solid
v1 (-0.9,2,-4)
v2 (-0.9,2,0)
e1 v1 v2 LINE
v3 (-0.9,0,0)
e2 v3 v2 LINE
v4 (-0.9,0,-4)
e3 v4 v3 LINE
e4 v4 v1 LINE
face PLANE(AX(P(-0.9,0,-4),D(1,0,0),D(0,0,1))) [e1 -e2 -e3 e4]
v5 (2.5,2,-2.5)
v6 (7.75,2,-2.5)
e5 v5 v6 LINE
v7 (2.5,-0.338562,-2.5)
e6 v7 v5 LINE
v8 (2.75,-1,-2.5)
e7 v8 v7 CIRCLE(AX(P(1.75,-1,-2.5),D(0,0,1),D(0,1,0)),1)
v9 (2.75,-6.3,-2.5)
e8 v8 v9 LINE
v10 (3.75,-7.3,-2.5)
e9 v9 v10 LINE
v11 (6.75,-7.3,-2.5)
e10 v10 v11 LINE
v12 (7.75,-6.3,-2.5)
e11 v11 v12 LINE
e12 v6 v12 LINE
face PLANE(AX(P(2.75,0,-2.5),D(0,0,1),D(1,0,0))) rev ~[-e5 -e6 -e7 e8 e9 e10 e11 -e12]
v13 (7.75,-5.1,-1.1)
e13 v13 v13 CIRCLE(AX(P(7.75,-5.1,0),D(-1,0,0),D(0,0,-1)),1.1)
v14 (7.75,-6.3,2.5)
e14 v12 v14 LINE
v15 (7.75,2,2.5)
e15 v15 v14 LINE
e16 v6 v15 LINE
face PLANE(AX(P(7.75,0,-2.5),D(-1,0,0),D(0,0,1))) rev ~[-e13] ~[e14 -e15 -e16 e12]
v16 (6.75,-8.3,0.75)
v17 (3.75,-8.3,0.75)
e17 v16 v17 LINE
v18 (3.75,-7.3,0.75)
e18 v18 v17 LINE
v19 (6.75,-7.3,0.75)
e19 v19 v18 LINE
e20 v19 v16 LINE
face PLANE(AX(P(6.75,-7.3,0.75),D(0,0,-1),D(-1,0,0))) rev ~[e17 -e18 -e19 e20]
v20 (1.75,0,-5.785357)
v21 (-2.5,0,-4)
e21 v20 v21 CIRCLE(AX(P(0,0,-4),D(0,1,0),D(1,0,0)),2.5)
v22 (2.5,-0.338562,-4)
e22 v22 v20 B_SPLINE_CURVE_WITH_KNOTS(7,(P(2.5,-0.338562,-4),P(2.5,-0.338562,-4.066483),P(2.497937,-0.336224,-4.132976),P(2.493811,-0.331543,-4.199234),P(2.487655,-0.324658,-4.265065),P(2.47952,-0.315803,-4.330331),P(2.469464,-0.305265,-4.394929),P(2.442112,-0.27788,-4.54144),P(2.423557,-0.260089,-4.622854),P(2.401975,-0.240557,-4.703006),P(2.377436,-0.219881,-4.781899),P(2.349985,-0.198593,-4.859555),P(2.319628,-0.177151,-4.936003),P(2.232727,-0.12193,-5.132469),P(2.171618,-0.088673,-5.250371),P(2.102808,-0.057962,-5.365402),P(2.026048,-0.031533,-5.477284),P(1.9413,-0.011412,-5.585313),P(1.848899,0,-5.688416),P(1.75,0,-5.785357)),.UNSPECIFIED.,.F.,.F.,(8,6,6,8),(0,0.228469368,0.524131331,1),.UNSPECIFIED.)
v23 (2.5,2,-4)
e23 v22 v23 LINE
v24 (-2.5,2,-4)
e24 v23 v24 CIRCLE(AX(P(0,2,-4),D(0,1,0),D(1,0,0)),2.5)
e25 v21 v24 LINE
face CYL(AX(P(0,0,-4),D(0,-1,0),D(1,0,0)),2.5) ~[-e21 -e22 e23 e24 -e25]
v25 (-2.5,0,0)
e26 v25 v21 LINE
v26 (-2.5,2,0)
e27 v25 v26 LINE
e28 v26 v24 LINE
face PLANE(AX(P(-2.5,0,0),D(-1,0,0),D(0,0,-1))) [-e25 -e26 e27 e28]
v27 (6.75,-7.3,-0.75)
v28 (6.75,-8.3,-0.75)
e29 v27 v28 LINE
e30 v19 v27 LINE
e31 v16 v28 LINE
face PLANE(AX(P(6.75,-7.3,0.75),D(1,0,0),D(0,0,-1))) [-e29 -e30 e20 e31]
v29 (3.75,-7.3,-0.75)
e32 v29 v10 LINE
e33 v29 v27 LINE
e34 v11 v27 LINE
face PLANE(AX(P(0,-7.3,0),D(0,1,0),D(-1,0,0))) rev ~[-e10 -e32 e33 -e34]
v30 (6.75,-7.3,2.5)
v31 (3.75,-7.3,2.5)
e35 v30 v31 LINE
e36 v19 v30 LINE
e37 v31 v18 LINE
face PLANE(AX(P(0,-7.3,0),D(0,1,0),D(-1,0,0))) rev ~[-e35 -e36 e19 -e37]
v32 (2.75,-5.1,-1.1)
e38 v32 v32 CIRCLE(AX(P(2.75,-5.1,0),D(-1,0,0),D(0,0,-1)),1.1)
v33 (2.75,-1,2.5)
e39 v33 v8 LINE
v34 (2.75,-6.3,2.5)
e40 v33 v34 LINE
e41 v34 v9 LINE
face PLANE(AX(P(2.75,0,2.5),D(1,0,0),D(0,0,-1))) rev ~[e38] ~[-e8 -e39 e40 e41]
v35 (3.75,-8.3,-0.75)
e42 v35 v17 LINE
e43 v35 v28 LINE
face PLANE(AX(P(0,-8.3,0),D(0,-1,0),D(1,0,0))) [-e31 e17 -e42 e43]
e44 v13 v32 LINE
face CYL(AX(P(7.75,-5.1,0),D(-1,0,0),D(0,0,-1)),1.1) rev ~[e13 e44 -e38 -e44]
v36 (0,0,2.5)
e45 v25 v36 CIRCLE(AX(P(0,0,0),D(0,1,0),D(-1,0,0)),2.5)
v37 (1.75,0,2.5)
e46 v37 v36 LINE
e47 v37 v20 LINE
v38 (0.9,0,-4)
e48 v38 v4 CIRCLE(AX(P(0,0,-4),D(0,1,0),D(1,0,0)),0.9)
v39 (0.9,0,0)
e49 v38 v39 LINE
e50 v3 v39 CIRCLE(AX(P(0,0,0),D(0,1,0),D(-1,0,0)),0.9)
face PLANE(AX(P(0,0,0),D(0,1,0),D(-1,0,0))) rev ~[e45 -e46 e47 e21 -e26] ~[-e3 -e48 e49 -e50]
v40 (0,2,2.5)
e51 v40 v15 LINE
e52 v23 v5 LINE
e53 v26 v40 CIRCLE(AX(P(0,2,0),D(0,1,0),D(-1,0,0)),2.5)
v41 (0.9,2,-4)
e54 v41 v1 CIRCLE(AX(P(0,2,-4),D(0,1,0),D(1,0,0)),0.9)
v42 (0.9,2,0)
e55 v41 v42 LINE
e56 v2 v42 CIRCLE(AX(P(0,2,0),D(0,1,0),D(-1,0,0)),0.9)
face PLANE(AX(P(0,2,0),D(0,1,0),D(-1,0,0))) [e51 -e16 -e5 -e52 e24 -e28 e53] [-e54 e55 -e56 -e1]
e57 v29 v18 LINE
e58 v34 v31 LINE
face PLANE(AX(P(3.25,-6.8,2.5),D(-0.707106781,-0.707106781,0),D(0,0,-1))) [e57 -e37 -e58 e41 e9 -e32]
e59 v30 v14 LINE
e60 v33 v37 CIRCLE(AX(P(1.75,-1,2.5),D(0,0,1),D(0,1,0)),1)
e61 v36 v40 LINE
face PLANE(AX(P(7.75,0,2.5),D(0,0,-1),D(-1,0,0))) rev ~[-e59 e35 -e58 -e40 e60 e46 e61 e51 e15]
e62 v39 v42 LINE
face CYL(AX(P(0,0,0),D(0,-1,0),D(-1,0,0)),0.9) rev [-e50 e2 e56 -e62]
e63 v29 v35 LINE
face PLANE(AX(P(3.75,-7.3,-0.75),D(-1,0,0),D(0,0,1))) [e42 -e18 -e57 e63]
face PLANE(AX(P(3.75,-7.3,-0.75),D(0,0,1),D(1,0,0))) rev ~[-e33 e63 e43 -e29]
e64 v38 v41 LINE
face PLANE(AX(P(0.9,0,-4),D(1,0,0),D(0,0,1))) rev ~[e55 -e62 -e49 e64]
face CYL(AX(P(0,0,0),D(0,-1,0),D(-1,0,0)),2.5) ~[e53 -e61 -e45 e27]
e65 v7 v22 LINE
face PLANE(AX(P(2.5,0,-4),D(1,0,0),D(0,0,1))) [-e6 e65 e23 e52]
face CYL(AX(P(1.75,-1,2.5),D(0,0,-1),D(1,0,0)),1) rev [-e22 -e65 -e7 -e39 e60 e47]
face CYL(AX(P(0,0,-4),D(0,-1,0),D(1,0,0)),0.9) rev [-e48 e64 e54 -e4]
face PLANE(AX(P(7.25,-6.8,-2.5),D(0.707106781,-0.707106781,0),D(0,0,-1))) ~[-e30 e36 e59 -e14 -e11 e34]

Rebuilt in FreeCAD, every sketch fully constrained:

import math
import FreeCAD as App
import Part
import Sketcher
Q = App.Units.Quantity


def edges_at(feature, points):
    """Names of the edges that pass closest to the given points."""
    edges = feature.Shape.Edges
    near = lambda p: min(range(len(edges)), key=lambda i: edges[i].distToShape(Part.Vertex(*p))[0])
    return sorted({f"Edge{near(p) + 1}" for p in points})


def add_polygon(sketch, points):
    """Adds a closed chain of lines whose ends are joined by coincident constraints."""
    first, n = sketch.GeometryCount, len(points)
    for a, b in zip(points, points[1:] + points[:1]):
        sketch.addGeometry(Part.LineSegment(App.Vector(*a, 0), App.Vector(*b, 0)), False)
    for i in range(n):
        sketch.addConstraint(Sketcher.Constraint("Coincident", first + i, 2, first + (i + 1) % n, 1))

doc = App.newDocument("Part")
body = doc.addObject("PartDesign::Body", "Body")

# Sketch on XZ plane
sketch1 = body.newObject("Sketcher::SketchObject", "Sketch")
sketch1.AttachmentSupport = (doc.getObject("XZ_Plane"), [""])
sketch1.MapMode = "FlatFace"
sketch1.addGeometry(Part.LineSegment(App.Vector(2.5, -2.5, 0), App.Vector(2.5, -4, 0)), False)
sketch1.addGeometry(Part.ArcOfCircle(Part.Circle(App.Vector(0, -4, 0), App.Vector(0, 0, 1), 2.5), math.radians(180), math.radians(360)), False)
sketch1.addGeometry(Part.LineSegment(App.Vector(-2.5, -4, 0), App.Vector(-2.5, 0, 0)), False)
sketch1.addGeometry(Part.ArcOfCircle(Part.Circle(App.Vector(0, 0, 0), App.Vector(0, 0, 1), 2.5), math.radians(90), math.radians(180)), False)
sketch1.addGeometry(Part.LineSegment(App.Vector(0, 2.5, 0), App.Vector(7.75, 2.5, 0)), False)
sketch1.addGeometry(Part.LineSegment(App.Vector(7.75, 2.5, 0), App.Vector(7.75, -2.5, 0)), False)
sketch1.addGeometry(Part.LineSegment(App.Vector(7.75, -2.5, 0), App.Vector(2.5, -2.5, 0)), False)
sketch1.addGeometry(Part.ArcOfCircle(Part.Circle(App.Vector(0, 0, 0), App.Vector(0, 0, 1), 0.9), math.radians(0), math.radians(180)), False)
sketch1.addGeometry(Part.LineSegment(App.Vector(-0.9, 0, 0), App.Vector(-0.9, -4, 0)), False)
sketch1.addGeometry(Part.ArcOfCircle(Part.Circle(App.Vector(0, -4, 0), App.Vector(0, 0, 1), 0.9), math.radians(180), math.radians(360)), False)
sketch1.addGeometry(Part.LineSegment(App.Vector(0.9, -4, 0), App.Vector(0.9, 0, 0)), False)
sketch1.addConstraint(Sketcher.Constraint("Tangent", 0, 2, 1, 2))
sketch1.addConstraint(Sketcher.Constraint("Tangent", 1, 1, 2, 1))
sketch1.addConstraint(Sketcher.Constraint("Tangent", 2, 2, 3, 2))
sketch1.addConstraint(Sketcher.Constraint("Tangent", 3, 1, 4, 1))
sketch1.addConstraint(Sketcher.Constraint("Coincident", 4, 2, 5, 1))
sketch1.addConstraint(Sketcher.Constraint("Coincident", 5, 2, 6, 1))
sketch1.addConstraint(Sketcher.Constraint("Coincident", 6, 2, 0, 1))
sketch1.addConstraint(Sketcher.Constraint("Tangent", 7, 2, 8, 1))
sketch1.addConstraint(Sketcher.Constraint("Tangent", 8, 2, 9, 1))
sketch1.addConstraint(Sketcher.Constraint("Tangent", 9, 2, 10, 1))
sketch1.addConstraint(Sketcher.Constraint("Tangent", 10, 2, 7, 1))
sketch1.addConstraint(Sketcher.Constraint("Vertical", 0))
sketch1.addConstraint(Sketcher.Constraint("Vertical", 2))
sketch1.addConstraint(Sketcher.Constraint("Horizontal", 4))
sketch1.addConstraint(Sketcher.Constraint("Vertical", 5))
sketch1.addConstraint(Sketcher.Constraint("Horizontal", 6))
sketch1.addConstraint(Sketcher.Constraint("Vertical", 8))
sketch1.addConstraint(Sketcher.Constraint("Vertical", 10))
sketch1.addConstraint(Sketcher.Constraint("Coincident", 3, 3, -1, 1))
sketch1.addConstraint(Sketcher.Constraint("Coincident", 7, 3, -1, 1))
sketch1.addConstraint(Sketcher.Constraint("Coincident", 9, 3, 1, 3))
sketch1.addConstraint(Sketcher.Constraint("Radius", 1, Q("2.5 mm")))
sketch1.addConstraint(Sketcher.Constraint("Radius", 7, Q("0.9 mm")))
sketch1.addConstraint(Sketcher.Constraint("DistanceY", 2, 1, 2, 2, Q("4 mm")))
sketch1.addConstraint(Sketcher.Constraint("DistanceY", 5, 2, 5, 1, Q("5 mm")))
sketch1.addConstraint(Sketcher.Constraint("DistanceX", 6, 2, 6, 1, Q("5.25 mm")))
pad1 = body.newObject("PartDesign::Pad", "Pad")
pad1.Profile = sketch1
pad1.Length = 2
pad1.Reversed = True

# Sketch on XZ plane
sketch2 = body.newObject("Sketcher::SketchObject", "Sketch001")
sketch2.AttachmentSupport = (doc.getObject("XZ_Plane"), [""])
sketch2.MapMode = "FlatFace"
add_polygon(sketch2, [(7.75, -2.5), (2.75, -2.5), (2.75, 2.5), (7.75, 2.5)])  # lines 0-3
sketch2.addConstraint(Sketcher.Constraint("Horizontal", 0))
sketch2.addConstraint(Sketcher.Constraint("Vertical", 1))
sketch2.addConstraint(Sketcher.Constraint("Horizontal", 2))
sketch2.addConstraint(Sketcher.Constraint("Vertical", 3))
sketch2.addConstraint(Sketcher.Constraint("Equal", 2, 1))
sketch2.addConstraint(Sketcher.Constraint("DistanceX", 0, 2, 0, 1, Q("5 mm")))
sketch2.addConstraint(Sketcher.Constraint("DistanceY", 0, 2, -1, 1, Q("2.5 mm")))
sketch2.addConstraint(Sketcher.Constraint("DistanceX", -1, 1, 0, 2, Q("2.75 mm")))
pad2 = body.newObject("PartDesign::Pad", "Pad001")
pad2.Profile = sketch2
pad2.Length = 7.3

# Sketch on YZ plane
sketch3 = body.newObject("Sketcher::SketchObject", "Sketch002")
sketch3.AttachmentSupport = (doc.getObject("YZ_Plane"), [""])
sketch3.MapMode = "FlatFace"
sketch3.AttachmentOffset = App.Placement(App.Vector(0, 0, 7.75), App.Rotation())
sketch3.addGeometry(Part.Circle(App.Vector(-5.1, 0, 0), App.Vector(0, 0, 1), 1.1), False)
sketch3.addConstraint(Sketcher.Constraint("PointOnObject", 0, 3, -1))
sketch3.addConstraint(Sketcher.Constraint("Diameter", 0, Q("2.2 mm")))
sketch3.addConstraint(Sketcher.Constraint("DistanceX", 0, 3, -1, 1, Q("5.1 mm")))
doc.recompute()
hole = body.newObject("PartDesign::Hole", "Hole")
hole.Profile = sketch3
hole.ThreadType = "None"
hole.Diameter = 2.2
hole.DepthType = "ThroughAll"
doc.recompute()

fillet = body.newObject("PartDesign::Fillet", "Fillet")
fillet.Base = (hole, edges_at(hole, [(2.75, 0, 0)]))
fillet.Radius = 1
doc.recompute()

chamfer = body.newObject("PartDesign::Chamfer", "Chamfer")
chamfer.Base = (fillet, edges_at(fillet, [(2.75, -7.3, 0), (7.75, -7.3, 0)]))
chamfer.Size = 1

# Sketch on XZ plane
sketch4 = body.newObject("Sketcher::SketchObject", "Sketch003")
sketch4.AttachmentSupport = (doc.getObject("XZ_Plane"), [""])
sketch4.MapMode = "FlatFace"
sketch4.AttachmentOffset = App.Placement(App.Vector(0, 0, 7.3), App.Rotation())
add_polygon(sketch4, [(6.75, -0.75), (6.75, 0.75), (3.75, 0.75), (3.75, -0.75)])  # lines 0-3
sketch4.addConstraint(Sketcher.Constraint("Vertical", 0))
sketch4.addConstraint(Sketcher.Constraint("Horizontal", 1))
sketch4.addConstraint(Sketcher.Constraint("Vertical", 2))
sketch4.addConstraint(Sketcher.Constraint("Horizontal", 3))
sketch4.addConstraint(Sketcher.Constraint("DistanceY", 0, 1, 0, 2, Q("1.5 mm")))
sketch4.addConstraint(Sketcher.Constraint("DistanceX", 1, 2, 1, 1, Q("3 mm")))
sketch4.addConstraint(Sketcher.Constraint("DistanceX", -1, 1, 0, 2, Q("6.75 mm")))
sketch4.addConstraint(Sketcher.Constraint("DistanceY", -1, 1, 0, 2, Q("0.75 mm")))
pad3 = body.newObject("PartDesign::Pad", "Pad002")
pad3.Profile = sketch4
pad3.Length = 1

doc.recompute()
